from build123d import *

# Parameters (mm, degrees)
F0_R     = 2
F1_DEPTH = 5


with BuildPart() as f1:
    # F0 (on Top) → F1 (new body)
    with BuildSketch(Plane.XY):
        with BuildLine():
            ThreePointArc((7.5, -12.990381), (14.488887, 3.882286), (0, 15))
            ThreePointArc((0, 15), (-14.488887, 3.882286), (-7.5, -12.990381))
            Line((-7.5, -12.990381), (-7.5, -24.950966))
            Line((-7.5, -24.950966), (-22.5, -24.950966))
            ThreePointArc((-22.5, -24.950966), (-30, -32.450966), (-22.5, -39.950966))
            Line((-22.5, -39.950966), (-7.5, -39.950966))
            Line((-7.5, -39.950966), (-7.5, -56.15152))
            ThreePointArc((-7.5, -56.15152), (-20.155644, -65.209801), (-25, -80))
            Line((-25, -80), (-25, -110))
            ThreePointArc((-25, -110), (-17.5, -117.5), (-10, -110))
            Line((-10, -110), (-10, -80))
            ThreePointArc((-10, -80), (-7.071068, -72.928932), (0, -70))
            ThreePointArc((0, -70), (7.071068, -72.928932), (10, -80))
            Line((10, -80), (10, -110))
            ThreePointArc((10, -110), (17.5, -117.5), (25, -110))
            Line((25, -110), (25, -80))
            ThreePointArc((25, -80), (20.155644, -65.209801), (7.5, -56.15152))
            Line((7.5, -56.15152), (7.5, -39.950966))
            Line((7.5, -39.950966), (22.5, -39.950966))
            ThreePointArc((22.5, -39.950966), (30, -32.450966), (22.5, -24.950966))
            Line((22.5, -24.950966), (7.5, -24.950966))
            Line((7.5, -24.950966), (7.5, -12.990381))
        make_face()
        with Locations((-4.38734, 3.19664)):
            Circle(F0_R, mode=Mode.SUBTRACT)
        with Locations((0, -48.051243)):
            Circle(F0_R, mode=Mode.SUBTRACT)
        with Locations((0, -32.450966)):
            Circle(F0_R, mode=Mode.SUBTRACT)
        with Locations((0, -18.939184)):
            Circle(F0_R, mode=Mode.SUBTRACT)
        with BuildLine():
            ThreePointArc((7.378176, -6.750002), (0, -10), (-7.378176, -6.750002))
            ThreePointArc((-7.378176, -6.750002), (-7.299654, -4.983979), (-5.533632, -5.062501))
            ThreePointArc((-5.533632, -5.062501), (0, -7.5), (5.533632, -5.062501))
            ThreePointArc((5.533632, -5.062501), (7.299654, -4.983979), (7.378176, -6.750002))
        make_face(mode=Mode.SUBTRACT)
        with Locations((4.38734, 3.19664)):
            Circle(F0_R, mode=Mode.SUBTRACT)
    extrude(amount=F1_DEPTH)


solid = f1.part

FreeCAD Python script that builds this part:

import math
import FreeCAD as App
import Part
import Sketcher

doc = App.newDocument("Part")
params = doc.addObject("Spreadsheet::Sheet", "Params")
for row, (alias, value) in enumerate([
    ("sketch1_diameter", "4 mm"),
    ("sketch1_radius", "15 mm"),
    ("sketch1_radius2", "9.999999 mm"),
    ("sketch1_radius3", "7.5 mm"),
    ("sketch1_width", "15 mm"),
    ("pad1_length", "5 mm"),
], start=1):
    params.set(f"A{row}", alias)
    params.set(f"B{row}", "=" + value)
    params.setAlias(f"B{row}", alias)

body = doc.addObject("PartDesign::Body", "Body")

# Sketch on XY plane
sketch1 = body.newObject("Sketcher::SketchObject", "Sketch")
sketch1.AttachmentSupport = (doc.getObject("XY_Plane"), [""])
sketch1.MapMode = "FlatFace"
sketch1.addGeometry([
    Part.ArcOfCircle(Part.Circle(App.Vector(0, 0, 0), App.Vector(0, 0, 1), 15), math.radians(-60), math.radians(90)),  # 0
    Part.ArcOfCircle(Part.Circle(App.Vector(0, 0, 0), App.Vector(0, 0, 1), 15), math.radians(90), math.radians(240)),  # 1
    Part.LineSegment(App.Vector(-7.5, -13, 0), App.Vector(-7.5, -25, 0)),  # 2
    Part.LineSegment(App.Vector(-7.5, -25, 0), App.Vector(-22.5, -25, 0)),  # 3
    Part.ArcOfCircle(Part.Circle(App.Vector(-22.5, -32.5, 0), App.Vector(0, 0, 1), 7.5), math.radians(90), math.radians(270)),  # 4
    Part.LineSegment(App.Vector(-22.5, -40, 0), App.Vector(-7.5, -40, 0)),  # 5
    Part.LineSegment(App.Vector(-7.5, -40, 0), App.Vector(-7.5, -56.2, 0)),  # 6
    Part.ArcOfCircle(Part.Circle(App.Vector(0, -80, 0), App.Vector(0, 0, 1), 25), math.radians(107), math.radians(180)),  # 7
    Part.LineSegment(App.Vector(-25, -80, 0), App.Vector(-25, -110, 0)),  # 8
    Part.ArcOfCircle(Part.Circle(App.Vector(-17.5, -110, 0), App.Vector(0, 0, 1), 7.5), math.radians(180), math.radians(360)),  # 9
    Part.LineSegment(App.Vector(-10, -110, 0), App.Vector(-10, -80, 0)),  # 10
    Part.ArcOfCircle(Part.Circle(App.Vector(0, -80, 0), App.Vector(0, 0, 1), 10), math.radians(90), math.radians(180)),  # 11
    Part.ArcOfCircle(Part.Circle(App.Vector(0, -80, 0), App.Vector(0, 0, 1), 10), math.radians(0), math.radians(90)),  # 12
    Part.LineSegment(App.Vector(10, -80, 0), App.Vector(10, -110, 0)),  # 13
    Part.ArcOfCircle(Part.Circle(App.Vector(17.5, -110, 0), App.Vector(0, 0, 1), 7.5), math.radians(180), math.radians(360)),  # 14
    Part.LineSegment(App.Vector(25, -110, 0), App.Vector(25, -80, 0)),  # 15
    Part.ArcOfCircle(Part.Circle(App.Vector(0, -80, 0), App.Vector(0, 0, 1), 25), math.radians(0), math.radians(73)),  # 16
    Part.LineSegment(App.Vector(7.5, -56.2, 0), App.Vector(7.5, -40, 0)),  # 17
    Part.LineSegment(App.Vector(7.5, -40, 0), App.Vector(22.5, -40, 0)),  # 18
    Part.ArcOfCircle(Part.Circle(App.Vector(22.5, -32.5, 0), App.Vector(0, 0, 1), 7.5), math.radians(-90), math.radians(90)),  # 19
    Part.LineSegment(App.Vector(22.5, -25, 0), App.Vector(7.5, -25, 0)),  # 20
    Part.LineSegment(App.Vector(7.5, -25, 0), App.Vector(7.5, -13, 0)),  # 21
    Part.Circle(App.Vector(0, -48.1, 0), App.Vector(0, 0, 1), 2),  # 22
    Part.Circle(App.Vector(0, -32.5, 0), App.Vector(0, 0, 1), 2),  # 23
    Part.Circle(App.Vector(-4.4, 3.2, 0), App.Vector(0, 0, 1), 2),  # 24
    Part.Circle(App.Vector(0, -18.9, 0), App.Vector(0, 0, 1), 2),  # 25
    Part.ArcOfCircle(Part.Circle(App.Vector(6.5, -5.9, 0), App.Vector(0, 0, 1), 1.3), math.radians(-42), math.radians(138)),  # 26
    Part.ArcOfCircle(Part.Circle(App.Vector(0, 0, 0), App.Vector(0, 0, 1), 10), math.radians(-138), math.radians(-42)),  # 27
    Part.ArcOfCircle(Part.Circle(App.Vector(-6.5, -5.9, 0), App.Vector(0, 0, 1), 1.3), math.radians(42), math.radians(222)),  # 28
    Part.ArcOfCircle(Part.Circle(App.Vector(0, 0, 0), App.Vector(0, 0, 1), 7.5), math.radians(-138), math.radians(-42)),  # 29
    Part.Circle(App.Vector(4.4, 3.2, 0), App.Vector(0, 0, 1), 2),  # 30
], False)
sketch1.addConstraint([
    Sketcher.Constraint("Tangent", 0, 2, 1, 1),
    Sketcher.Constraint("Coincident", 1, 2, 2, 1),
    Sketcher.Constraint("Coincident", 2, 2, 3, 1),
    Sketcher.Constraint("Tangent", 3, 2, 4, 1),
    Sketcher.Constraint("Tangent", 4, 2, 5, 1),
    Sketcher.Constraint("Coincident", 5, 2, 6, 1),
    Sketcher.Constraint("Coincident", 6, 2, 7, 1),
    Sketcher.Constraint("Tangent", 7, 2, 8, 1),
    Sketcher.Constraint("Tangent", 8, 2, 9, 1),
    Sketcher.Constraint("Tangent", 9, 2, 10, 1),
    Sketcher.Constraint("Tangent", 10, 2, 11, 2),
    Sketcher.Constraint("Tangent", 11, 1, 12, 2),
    Sketcher.Constraint("Tangent", 12, 1, 13, 1),
    Sketcher.Constraint("Tangent", 13, 2, 14, 1),
    Sketcher.Constraint("Tangent", 14, 2, 15, 1),
    Sketcher.Constraint("Tangent", 15, 2, 16, 1),
    Sketcher.Constraint("Coincident", 16, 2, 17, 1),
    Sketcher.Constraint("Coincident", 17, 2, 18, 1),
    Sketcher.Constraint("Tangent", 18, 2, 19, 1),
    Sketcher.Constraint("Tangent", 19, 2, 20, 1),
    Sketcher.Constraint("Coincident", 20, 2, 21, 1),
    Sketcher.Constraint("Coincident", 21, 2, 0, 1),
    Sketcher.Constraint("Tangent", 26, 1, 27, 2),
    Sketcher.Constraint("Tangent", 27, 1, 28, 2),
    Sketcher.Constraint("Tangent", 28, 1, 29, 1),
    Sketcher.Constraint("Tangent", 29, 2, 26, 2),
    Sketcher.Constraint("Vertical", 2),
    Sketcher.Constraint("Horizontal", 3),
    Sketcher.Constraint("Horizontal", 5),
    Sketcher.Constraint("Vertical", 6),
    Sketcher.Constraint("Vertical", 8),
    Sketcher.Constraint("Vertical", 10),
    Sketcher.Constraint("Vertical", 13),
    Sketcher.Constraint("Vertical", 15),
    Sketcher.Constraint("Vertical", 17),
    Sketcher.Constraint("Horizontal", 18),
    Sketcher.Constraint("Horizontal", 20),
    Sketcher.Constraint("Vertical", 21),
    Sketcher.Constraint("Coincident", 0, 3, -1, 1),
    Sketcher.Constraint("Coincident", 27, 3, -1, 1),
    Sketcher.Constraint("Coincident", 29, 3, -1, 1),
    Sketcher.Constraint("Coincident", 11, 3, 7, 3),
    Sketcher.Constraint("Coincident", 16, 3, 7, 3),
    Sketcher.Constraint("Equal", 0, 1),
    Sketcher.Constraint("Equal", 4, 9),
    Sketcher.Constraint("Equal", 11, 12),
    Sketcher.Constraint("Equal", 9, 14),
    Sketcher.Constraint("Equal", 14, 19),
    Sketcher.Constraint("Equal", 22, 23),
    Sketcher.Constraint("Equal", 23, 24),
    Sketcher.Constraint("Equal", 24, 25),
    Sketcher.Constraint("Equal", 12, 27),
    Sketcher.Constraint("Equal", 19, 29),
    Sketcher.Constraint("Equal", 25, 30),
    Sketcher.Constraint("Symmetric", 9, 3, 14, 3, -2),
    Sketcher.Constraint("Symmetric", 4, 3, 19, 3, -2),
    Sketcher.Constraint("Symmetric", 24, 3, 30, 3, -2),
    Sketcher.Constraint("PointOnObject", 22, 3, -2),
    Sketcher.Constraint("PointOnObject", 23, 3, -2),
    Sketcher.Constraint("PointOnObject", 25, 3, -2),
    Sketcher.Constraint("PointOnObject", 0, 2, -2),
    Sketcher.Constraint("PointOnObject", 11, 1, -2),
    Sketcher.Constraint("Horizontal", 19, 3, 23, 3),
    Sketcher.Constraint("Horizontal", 26, 3, 28, 3),
    Sketcher.Constraint("Horizontal", 6, 2, 16, 2),
    Sketcher.Constraint("Horizontal", 1, 2, 21, 2),
    Sketcher.Constraint("Vertical", 2, 2, 5, 2),
    Sketcher.Constraint("Diameter", 22, 4.0),
    Sketcher.Constraint("Radius", 0, 15.0),
    Sketcher.Constraint("Radius", 11, 9.999999),
    Sketcher.Constraint("Radius", 4, 7.5),
    Sketcher.Constraint("DistanceX", 3, 2, 3, 1, 15.0),
    Sketcher.Constraint("DistanceY", 8, 2, 8, 1, 30.0),
    Sketcher.Constraint("DistanceY", 7, 3, -1, 1, 80.000002),
    Sketcher.Constraint("DistanceX", 4, 3, 9, 3, 5.0),
    Sketcher.Constraint("DistanceY", 26, 1, -1, 1, 6.750002),
    Sketcher.Constraint("DistanceY", 2, 2, 2, 1, 11.960585),
    Sketcher.Constraint("DistanceX", 24, 3, -1, 1, 4.38734),
    Sketcher.Constraint("DistanceY", -1, 1, 24, 3, 3.19664),
    Sketcher.Constraint("DistanceY", 7, 3, 22, 3, 31.948759),
    Sketcher.Constraint("DistanceY", 25, 3, -1, 1, 18.939184),
])
sketch1.setExpression("Constraints[67]", "Params.sketch1_diameter")
sketch1.setExpression("Constraints[68]", "Params.sketch1_radius")
sketch1.setExpression("Constraints[69]", "Params.sketch1_radius2")
sketch1.setExpression("Constraints[70]", "Params.sketch1_radius3")
sketch1.setExpression("Constraints[71]", "Params.sketch1_width")
pad1 = body.newObject("PartDesign::Pad", "Pad")
pad1.Profile = sketch1
pad1.setExpression("Length", "Params.pad1_length")

doc.recompute()
